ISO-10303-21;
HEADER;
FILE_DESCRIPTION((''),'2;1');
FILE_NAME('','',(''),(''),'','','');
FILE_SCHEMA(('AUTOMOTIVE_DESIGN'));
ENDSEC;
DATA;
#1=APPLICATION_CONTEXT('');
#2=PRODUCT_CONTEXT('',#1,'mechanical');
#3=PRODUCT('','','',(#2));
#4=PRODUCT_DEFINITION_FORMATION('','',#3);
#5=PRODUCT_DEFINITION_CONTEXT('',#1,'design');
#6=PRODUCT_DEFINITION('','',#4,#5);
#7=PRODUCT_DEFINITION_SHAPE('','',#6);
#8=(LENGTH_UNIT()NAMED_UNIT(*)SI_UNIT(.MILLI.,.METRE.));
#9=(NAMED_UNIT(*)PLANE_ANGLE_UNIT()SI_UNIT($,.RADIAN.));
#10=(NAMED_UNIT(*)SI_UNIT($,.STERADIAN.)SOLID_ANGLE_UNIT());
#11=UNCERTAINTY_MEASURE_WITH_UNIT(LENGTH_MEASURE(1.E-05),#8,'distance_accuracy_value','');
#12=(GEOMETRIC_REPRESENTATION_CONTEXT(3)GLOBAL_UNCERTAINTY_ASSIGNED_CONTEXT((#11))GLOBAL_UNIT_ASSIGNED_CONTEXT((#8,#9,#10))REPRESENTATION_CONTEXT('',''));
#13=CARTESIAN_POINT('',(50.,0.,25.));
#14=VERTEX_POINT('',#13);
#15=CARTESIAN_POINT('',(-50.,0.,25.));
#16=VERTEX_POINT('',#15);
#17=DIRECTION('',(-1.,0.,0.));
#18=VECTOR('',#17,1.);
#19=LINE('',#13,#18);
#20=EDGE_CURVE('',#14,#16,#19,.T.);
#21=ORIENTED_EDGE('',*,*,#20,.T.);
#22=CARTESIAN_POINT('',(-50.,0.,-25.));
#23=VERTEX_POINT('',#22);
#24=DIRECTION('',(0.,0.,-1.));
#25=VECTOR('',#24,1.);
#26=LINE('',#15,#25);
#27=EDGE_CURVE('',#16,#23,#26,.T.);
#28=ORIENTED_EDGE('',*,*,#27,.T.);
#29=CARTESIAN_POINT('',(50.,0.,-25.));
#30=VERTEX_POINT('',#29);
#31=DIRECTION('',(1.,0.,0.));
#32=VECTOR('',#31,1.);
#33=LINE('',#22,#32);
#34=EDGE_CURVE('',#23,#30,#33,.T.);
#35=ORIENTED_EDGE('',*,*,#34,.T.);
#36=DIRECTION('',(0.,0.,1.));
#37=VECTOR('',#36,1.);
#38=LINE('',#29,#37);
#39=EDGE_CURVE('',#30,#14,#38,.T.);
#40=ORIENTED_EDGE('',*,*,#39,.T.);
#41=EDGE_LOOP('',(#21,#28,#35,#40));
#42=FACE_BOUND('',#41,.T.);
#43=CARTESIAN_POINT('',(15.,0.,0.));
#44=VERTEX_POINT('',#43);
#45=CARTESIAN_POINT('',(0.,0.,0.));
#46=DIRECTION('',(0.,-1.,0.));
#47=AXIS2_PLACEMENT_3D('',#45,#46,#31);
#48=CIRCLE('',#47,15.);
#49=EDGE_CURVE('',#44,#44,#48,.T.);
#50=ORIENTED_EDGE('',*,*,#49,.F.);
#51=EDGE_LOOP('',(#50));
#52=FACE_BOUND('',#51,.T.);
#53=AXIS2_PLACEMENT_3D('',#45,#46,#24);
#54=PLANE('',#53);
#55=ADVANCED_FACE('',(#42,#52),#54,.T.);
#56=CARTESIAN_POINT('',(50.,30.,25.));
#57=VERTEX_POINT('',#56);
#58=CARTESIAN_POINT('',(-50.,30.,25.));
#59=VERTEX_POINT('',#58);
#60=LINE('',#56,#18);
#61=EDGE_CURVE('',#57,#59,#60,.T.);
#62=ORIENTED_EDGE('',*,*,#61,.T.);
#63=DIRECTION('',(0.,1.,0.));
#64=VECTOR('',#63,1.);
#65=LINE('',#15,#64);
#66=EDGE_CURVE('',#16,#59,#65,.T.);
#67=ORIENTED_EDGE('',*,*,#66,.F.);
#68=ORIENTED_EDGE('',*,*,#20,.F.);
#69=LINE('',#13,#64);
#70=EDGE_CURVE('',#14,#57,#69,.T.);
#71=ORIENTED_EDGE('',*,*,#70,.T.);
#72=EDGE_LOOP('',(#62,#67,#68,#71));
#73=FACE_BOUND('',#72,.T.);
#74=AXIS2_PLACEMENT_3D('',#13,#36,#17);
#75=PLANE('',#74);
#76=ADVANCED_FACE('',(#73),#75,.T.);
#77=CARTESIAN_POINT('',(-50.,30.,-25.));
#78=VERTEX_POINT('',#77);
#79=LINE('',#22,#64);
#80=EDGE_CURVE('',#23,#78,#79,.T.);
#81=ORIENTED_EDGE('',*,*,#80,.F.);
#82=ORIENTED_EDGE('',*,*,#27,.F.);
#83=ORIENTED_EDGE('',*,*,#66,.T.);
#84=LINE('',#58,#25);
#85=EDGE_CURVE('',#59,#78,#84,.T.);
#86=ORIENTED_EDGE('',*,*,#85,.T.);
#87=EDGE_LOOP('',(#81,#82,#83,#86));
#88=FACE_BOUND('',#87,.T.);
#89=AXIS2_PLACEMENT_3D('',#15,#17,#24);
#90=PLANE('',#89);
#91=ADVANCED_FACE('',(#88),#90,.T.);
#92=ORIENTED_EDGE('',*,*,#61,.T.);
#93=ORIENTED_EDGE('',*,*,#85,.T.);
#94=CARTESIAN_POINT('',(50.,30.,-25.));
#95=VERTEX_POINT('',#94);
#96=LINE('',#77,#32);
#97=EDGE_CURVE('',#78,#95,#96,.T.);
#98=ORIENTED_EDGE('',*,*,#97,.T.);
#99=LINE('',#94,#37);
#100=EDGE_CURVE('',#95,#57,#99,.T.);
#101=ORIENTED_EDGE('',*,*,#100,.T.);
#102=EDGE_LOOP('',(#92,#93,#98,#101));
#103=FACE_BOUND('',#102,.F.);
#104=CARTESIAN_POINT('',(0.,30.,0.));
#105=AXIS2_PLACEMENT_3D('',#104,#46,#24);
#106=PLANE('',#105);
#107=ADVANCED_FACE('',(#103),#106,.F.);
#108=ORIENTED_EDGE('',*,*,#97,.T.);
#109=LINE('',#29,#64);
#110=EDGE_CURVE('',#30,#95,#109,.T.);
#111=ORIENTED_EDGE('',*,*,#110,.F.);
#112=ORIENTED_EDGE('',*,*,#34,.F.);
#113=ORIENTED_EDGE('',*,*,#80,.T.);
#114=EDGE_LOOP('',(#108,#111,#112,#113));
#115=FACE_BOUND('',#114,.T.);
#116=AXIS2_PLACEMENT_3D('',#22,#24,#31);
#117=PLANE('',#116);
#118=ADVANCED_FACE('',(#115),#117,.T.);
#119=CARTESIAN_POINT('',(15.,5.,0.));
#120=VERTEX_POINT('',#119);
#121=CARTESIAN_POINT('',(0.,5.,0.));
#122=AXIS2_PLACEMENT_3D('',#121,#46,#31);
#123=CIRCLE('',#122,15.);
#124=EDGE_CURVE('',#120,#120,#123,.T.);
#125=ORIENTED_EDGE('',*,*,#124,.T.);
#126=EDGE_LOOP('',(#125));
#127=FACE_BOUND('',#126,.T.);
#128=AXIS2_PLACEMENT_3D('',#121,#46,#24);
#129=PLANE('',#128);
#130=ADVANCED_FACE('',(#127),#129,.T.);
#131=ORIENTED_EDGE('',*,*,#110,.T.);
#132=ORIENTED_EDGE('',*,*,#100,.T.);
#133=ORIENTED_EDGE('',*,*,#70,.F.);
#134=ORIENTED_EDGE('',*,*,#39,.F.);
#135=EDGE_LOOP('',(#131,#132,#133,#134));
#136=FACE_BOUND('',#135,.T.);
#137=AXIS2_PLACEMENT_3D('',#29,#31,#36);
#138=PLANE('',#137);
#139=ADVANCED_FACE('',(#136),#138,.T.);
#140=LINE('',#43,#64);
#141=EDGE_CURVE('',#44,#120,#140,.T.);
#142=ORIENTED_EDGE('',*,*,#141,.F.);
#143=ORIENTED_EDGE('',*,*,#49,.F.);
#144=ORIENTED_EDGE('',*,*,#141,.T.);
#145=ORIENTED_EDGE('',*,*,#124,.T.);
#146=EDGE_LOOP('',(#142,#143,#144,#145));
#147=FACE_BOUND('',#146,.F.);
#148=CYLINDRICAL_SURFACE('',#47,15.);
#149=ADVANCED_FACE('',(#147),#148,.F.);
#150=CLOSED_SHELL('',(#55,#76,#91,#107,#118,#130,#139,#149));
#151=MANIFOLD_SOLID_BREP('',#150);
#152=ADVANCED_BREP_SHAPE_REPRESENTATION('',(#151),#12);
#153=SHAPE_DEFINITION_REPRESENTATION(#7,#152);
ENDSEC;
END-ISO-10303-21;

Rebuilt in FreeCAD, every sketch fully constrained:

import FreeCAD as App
import Part
import Sketcher
from FreeCAD import Vector

doc = App.newDocument("Part")
body = doc.addObject("PartDesign::Body", "Body")

sketch1 = body.newObject("Sketcher::SketchObject", "Sketch")
sketch1.AttachmentSupport = (doc.getObject("XZ_Plane"), [""])
sketch1.MapMode = "FlatFace"
sketch1.addGeometry([
    Part.LineSegment(Vector(-50, 25, 0), Vector(-50, -25, 0)),
    Part.LineSegment(Vector(-50, -25, 0), Vector(50, -25, 0)),
    Part.LineSegment(Vector(50, -25, 0), Vector(50, 25, 0)),
    Part.LineSegment(Vector(50, 25, 0), Vector(-50, 25, 0)),
], False)
sketch1.addConstraint([
    Sketcher.Constraint("Coincident", 0, 2, 1, 1),
    Sketcher.Constraint("Coincident", 1, 2, 2, 1),
    Sketcher.Constraint("Coincident", 2, 2, 3, 1),
    Sketcher.Constraint("Coincident", 3, 2, 0, 1),
    Sketcher.Constraint("Vertical", 0),
    Sketcher.Constraint("Horizontal", 1),
    Sketcher.Constraint("Vertical", 2),
    Sketcher.Constraint("Horizontal", 3),
    Sketcher.Constraint("Symmetric", 0, 2, 2, 2, -1, 1),
    Sketcher.Constraint("DistanceY", 0, 2, 0, 1, 50.0),
    Sketcher.Constraint("DistanceX", 0, 2, -1, 1, 50.0),
])
pad1 = body.newObject("PartDesign::Pad", "Pad")
pad1.Profile = sketch1
pad1.Length = 30
pad1.Reversed = True

sketch2 = body.newObject("Sketcher::SketchObject", "Sketch001")
sketch2.AttachmentSupport = (doc.getObject("XZ_Plane"), [""])
sketch2.MapMode = "FlatFace"
sketch2.addGeometry(Part.Circle(Vector(0, 0, 0), Vector(0, 0, 1), 15), False)
sketch2.addConstraint([
    Sketcher.Constraint("Coincident", 0, 3, -1, 1),
    Sketcher.Constraint("Diameter", 0, 30.0),
])
pocket1 = body.newObject("PartDesign::Pocket", "Pocket")
pocket1.Profile = sketch2
pocket1.Length = 5

doc.recompute()
